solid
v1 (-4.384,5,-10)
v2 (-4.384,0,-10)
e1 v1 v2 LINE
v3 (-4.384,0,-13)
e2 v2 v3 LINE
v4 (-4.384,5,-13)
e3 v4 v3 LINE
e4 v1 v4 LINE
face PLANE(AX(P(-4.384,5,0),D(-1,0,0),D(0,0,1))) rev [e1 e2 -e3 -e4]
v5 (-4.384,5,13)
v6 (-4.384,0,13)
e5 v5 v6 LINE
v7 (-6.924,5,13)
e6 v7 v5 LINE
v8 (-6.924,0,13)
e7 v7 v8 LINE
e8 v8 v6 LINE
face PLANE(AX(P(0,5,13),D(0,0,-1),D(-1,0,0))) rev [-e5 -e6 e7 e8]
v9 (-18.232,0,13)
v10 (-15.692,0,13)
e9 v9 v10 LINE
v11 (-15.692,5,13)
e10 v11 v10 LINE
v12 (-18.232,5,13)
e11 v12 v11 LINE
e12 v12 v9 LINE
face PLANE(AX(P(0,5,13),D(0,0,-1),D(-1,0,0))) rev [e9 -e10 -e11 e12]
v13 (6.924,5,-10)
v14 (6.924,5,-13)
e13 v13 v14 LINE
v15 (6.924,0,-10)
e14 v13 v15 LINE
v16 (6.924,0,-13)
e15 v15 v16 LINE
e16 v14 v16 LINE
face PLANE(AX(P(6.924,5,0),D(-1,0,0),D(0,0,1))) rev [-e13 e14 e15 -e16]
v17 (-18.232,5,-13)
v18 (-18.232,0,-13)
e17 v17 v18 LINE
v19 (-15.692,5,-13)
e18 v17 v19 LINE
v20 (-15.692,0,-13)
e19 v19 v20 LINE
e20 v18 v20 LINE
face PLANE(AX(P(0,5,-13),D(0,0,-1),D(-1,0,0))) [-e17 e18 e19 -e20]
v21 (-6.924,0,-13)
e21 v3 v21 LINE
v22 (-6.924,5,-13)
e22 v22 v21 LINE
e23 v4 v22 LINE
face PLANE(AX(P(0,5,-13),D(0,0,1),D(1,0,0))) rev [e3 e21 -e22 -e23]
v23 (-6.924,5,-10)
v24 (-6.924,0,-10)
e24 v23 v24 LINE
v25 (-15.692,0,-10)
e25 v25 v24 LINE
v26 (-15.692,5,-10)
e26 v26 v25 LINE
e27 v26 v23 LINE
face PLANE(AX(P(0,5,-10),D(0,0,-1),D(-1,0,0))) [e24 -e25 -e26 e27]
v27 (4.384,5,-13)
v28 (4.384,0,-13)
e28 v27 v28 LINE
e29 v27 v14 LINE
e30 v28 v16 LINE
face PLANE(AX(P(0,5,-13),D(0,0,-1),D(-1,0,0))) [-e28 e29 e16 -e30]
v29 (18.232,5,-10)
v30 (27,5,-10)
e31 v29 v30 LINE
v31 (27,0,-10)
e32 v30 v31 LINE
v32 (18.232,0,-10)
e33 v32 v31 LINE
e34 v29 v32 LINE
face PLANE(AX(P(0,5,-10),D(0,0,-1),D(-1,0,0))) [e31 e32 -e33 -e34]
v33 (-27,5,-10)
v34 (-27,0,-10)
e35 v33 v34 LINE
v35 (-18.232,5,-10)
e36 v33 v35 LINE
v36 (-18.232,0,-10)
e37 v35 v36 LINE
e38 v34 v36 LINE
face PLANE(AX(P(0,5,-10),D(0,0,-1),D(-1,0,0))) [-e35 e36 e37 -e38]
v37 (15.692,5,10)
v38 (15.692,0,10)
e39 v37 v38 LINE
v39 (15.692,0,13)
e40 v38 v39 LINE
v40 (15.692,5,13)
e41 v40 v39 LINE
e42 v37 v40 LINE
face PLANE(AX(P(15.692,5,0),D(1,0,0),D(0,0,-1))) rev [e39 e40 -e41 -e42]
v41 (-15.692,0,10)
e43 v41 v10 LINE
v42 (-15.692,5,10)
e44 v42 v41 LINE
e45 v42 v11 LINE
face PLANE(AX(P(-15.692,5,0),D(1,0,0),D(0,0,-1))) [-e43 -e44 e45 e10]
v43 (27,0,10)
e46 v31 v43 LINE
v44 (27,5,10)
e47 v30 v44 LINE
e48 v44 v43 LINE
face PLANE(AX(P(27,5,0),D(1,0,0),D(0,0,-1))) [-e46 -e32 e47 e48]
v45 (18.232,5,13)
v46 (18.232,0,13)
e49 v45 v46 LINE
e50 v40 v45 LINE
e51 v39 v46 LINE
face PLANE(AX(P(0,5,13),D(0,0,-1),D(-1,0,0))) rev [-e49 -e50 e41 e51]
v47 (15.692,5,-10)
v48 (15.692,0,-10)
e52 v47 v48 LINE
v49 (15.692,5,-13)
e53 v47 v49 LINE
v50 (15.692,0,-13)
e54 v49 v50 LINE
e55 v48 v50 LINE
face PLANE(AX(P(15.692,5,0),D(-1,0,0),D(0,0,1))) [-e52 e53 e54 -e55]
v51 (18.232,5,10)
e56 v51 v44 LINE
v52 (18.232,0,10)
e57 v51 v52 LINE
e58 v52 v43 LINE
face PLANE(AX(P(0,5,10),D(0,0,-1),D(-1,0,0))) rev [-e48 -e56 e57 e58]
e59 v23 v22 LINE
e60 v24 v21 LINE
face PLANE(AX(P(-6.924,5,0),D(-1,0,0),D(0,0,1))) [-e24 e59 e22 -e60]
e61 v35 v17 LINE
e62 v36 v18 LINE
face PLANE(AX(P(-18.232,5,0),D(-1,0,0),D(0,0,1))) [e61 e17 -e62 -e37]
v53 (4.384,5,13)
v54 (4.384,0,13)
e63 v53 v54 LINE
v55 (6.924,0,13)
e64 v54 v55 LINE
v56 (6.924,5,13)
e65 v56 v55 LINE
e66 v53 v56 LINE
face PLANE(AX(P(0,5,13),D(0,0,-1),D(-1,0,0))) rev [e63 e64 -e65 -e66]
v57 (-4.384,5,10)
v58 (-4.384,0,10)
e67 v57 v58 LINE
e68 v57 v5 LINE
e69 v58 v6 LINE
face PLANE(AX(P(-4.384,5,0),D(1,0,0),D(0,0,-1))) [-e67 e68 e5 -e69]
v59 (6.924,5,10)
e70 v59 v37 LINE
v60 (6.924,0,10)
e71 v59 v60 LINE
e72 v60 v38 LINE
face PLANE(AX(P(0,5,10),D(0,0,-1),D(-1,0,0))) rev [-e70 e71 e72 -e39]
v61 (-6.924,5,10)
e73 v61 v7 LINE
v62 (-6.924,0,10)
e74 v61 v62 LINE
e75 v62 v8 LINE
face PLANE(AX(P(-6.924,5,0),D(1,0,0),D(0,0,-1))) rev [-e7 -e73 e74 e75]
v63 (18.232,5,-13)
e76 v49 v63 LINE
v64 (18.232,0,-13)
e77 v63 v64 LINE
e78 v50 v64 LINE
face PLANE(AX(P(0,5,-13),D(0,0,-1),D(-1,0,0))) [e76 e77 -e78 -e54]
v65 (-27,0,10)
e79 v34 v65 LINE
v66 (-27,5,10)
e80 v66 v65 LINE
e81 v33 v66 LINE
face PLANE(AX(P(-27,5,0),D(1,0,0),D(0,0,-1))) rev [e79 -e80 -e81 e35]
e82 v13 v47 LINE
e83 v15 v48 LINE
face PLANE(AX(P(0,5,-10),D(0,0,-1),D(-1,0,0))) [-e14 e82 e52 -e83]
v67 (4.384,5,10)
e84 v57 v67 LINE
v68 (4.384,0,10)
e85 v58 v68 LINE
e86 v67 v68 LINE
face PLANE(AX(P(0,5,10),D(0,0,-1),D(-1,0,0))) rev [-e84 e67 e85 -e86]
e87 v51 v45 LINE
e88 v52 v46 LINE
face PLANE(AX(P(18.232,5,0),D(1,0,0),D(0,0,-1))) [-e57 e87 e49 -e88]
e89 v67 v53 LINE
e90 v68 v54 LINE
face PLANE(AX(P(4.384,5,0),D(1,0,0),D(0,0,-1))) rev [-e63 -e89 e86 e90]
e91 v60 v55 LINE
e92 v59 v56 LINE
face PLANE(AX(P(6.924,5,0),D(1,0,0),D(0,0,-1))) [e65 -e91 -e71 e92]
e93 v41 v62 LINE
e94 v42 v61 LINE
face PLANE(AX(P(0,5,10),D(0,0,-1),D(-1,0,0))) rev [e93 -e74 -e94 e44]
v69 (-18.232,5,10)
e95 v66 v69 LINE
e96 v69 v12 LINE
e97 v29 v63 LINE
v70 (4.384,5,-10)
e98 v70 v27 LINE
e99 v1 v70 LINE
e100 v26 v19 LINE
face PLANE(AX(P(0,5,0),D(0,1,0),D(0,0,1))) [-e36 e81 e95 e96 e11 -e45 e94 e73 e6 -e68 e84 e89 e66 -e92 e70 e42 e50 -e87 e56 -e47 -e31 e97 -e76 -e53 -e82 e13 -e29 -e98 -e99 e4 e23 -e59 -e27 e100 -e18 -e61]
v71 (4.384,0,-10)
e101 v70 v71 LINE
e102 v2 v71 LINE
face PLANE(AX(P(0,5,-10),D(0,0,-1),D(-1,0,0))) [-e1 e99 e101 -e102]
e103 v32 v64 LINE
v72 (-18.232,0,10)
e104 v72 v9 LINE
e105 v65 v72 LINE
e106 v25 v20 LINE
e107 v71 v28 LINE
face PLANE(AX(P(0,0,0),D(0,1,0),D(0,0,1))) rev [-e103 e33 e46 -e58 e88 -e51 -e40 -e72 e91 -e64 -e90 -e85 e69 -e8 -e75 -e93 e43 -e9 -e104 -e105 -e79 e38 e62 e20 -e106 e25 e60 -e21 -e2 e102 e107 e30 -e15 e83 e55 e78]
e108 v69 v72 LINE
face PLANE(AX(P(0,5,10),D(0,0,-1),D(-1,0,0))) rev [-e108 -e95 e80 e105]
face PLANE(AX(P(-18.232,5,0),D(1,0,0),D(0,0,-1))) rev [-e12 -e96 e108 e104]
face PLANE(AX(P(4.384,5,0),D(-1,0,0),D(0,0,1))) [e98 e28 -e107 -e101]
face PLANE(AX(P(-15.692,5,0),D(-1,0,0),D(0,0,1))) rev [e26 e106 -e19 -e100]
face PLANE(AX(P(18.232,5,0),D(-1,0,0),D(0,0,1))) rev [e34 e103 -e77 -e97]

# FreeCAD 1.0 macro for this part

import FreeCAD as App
import Part
import Sketcher

doc = App.newDocument("Part")
body = doc.addObject("PartDesign::Body", "Body")

# Sketch on XZ plane
sketch1 = body.newObject("Sketcher::SketchObject", "Sketch")
sketch1.AttachmentSupport = (doc.getObject("XZ_Plane"), [""])
sketch1.MapMode = "FlatFace"
sketch1.addGeometry(Part.LineSegment(App.Vector(-27, -10, 0), App.Vector(-27, 10, 0)), False)
sketch1.addGeometry(Part.LineSegment(App.Vector(-27, 10, 0), App.Vector(-18.232, 10, 0)), False)
sketch1.addGeometry(Part.LineSegment(App.Vector(-18.232, 10, 0), App.Vector(-18.232, 13, 0)), False)
sketch1.addGeometry(Part.LineSegment(App.Vector(-18.232, 13, 0), App.Vector(-15.692, 13, 0)), False)
sketch1.addGeometry(Part.LineSegment(App.Vector(-15.692, 13, 0), App.Vector(-15.692, 10, 0)), False)
sketch1.addGeometry(Part.LineSegment(App.Vector(-15.692, 10, 0), App.Vector(-6.924, 10, 0)), False)
sketch1.addGeometry(Part.LineSegment(App.Vector(-6.924, 10, 0), App.Vector(-6.924, 13, 0)), False)
sketch1.addGeometry(Part.LineSegment(App.Vector(-6.924, 13, 0), App.Vector(-4.384, 13, 0)), False)
sketch1.addGeometry(Part.LineSegment(App.Vector(-4.384, 13, 0), App.Vector(-4.384, 10, 0)), False)
sketch1.addGeometry(Part.LineSegment(App.Vector(-4.384, 10, 0), App.Vector(4.384, 10, 0)), False)
sketch1.addGeometry(Part.LineSegment(App.Vector(4.384, 10, 0), App.Vector(4.384, 13, 0)), False)
sketch1.addGeometry(Part.LineSegment(App.Vector(4.384, 13, 0), App.Vector(6.924, 13, 0)), False)
sketch1.addGeometry(Part.LineSegment(App.Vector(6.924, 13, 0), App.Vector(6.924, 10, 0)), False)
sketch1.addGeometry(Part.LineSegment(App.Vector(6.924, 10, 0), App.Vector(15.692, 10, 0)), False)
sketch1.addGeometry(Part.LineSegment(App.Vector(15.692, 10, 0), App.Vector(15.692, 13, 0)), False)
sketch1.addGeometry(Part.LineSegment(App.Vector(15.692, 13, 0), App.Vector(18.232, 13, 0)), False)
sketch1.addGeometry(Part.LineSegment(App.Vector(18.232, 13, 0), App.Vector(18.232, 10, 0)), False)
sketch1.addGeometry(Part.LineSegment(App.Vector(18.232, 10, 0), App.Vector(27, 10, 0)), False)
sketch1.addGeometry(Part.LineSegment(App.Vector(27, 10, 0), App.Vector(27, -10, 0)), False)
sketch1.addGeometry(Part.LineSegment(App.Vector(27, -10, 0), App.Vector(18.232, -10, 0)), False)
sketch1.addGeometry(Part.LineSegment(App.Vector(18.232, -10, 0), App.Vector(18.232, -13, 0)), False)
sketch1.addGeometry(Part.LineSegment(App.Vector(18.232, -13, 0), App.Vector(15.692, -13, 0)), False)
sketch1.addGeometry(Part.LineSegment(App.Vector(15.692, -13, 0), App.Vector(15.692, -10, 0)), False)
sketch1.addGeometry(Part.LineSegment(App.Vector(15.692, -10, 0), App.Vector(6.924, -10, 0)), False)
sketch1.addGeometry(Part.LineSegment(App.Vector(6.924, -10, 0), App.Vector(6.924, -13, 0)), False)
sketch1.addGeometry(Part.LineSegment(App.Vector(6.924, -13, 0), App.Vector(4.384, -13, 0)), False)
sketch1.addGeometry(Part.LineSegment(App.Vector(4.384, -13, 0), App.Vector(4.384, -10, 0)), False)
sketch1.addGeometry(Part.LineSegment(App.Vector(4.384, -10, 0), App.Vector(-4.384, -10, 0)), False)
sketch1.addGeometry(Part.LineSegment(App.Vector(-4.384, -10, 0), App.Vector(-4.384, -13, 0)), False)
sketch1.addGeometry(Part.LineSegment(App.Vector(-4.384, -13, 0), App.Vector(-6.924, -13, 0)), False)
sketch1.addGeometry(Part.LineSegment(App.Vector(-6.924, -13, 0), App.Vector(-6.924, -10, 0)), False)
sketch1.addGeometry(Part.LineSegment(App.Vector(-6.924, -10, 0), App.Vector(-15.692, -10, 0)), False)
sketch1.addGeometry(Part.LineSegment(App.Vector(-15.692, -10, 0), App.Vector(-15.692, -13, 0)), False)
sketch1.addGeometry(Part.LineSegment(App.Vector(-15.692, -13, 0), App.Vector(-18.232, -13, 0)), False)
sketch1.addGeometry(Part.LineSegment(App.Vector(-18.232, -13, 0), App.Vector(-18.232, -10, 0)), False)
sketch1.addGeometry(Part.LineSegment(App.Vector(-18.232, -10, 0), App.Vector(-27, -10, 0)), False)
sketch1.addConstraint(Sketcher.Constraint("Coincident", 0, 2, 1, 1))
sketch1.addConstraint(Sketcher.Constraint("Coincident", 1, 2, 2, 1))
sketch1.addConstraint(Sketcher.Constraint("Coincident", 2, 2, 3, 1))
sketch1.addConstraint(Sketcher.Constraint("Coincident", 3, 2, 4, 1))
sketch1.addConstraint(Sketcher.Constraint("Coincident", 4, 2, 5, 1))
sketch1.addConstraint(Sketcher.Constraint("Coincident", 5, 2, 6, 1))
sketch1.addConstraint(Sketcher.Constraint("Coincident", 6, 2, 7, 1))
sketch1.addConstraint(Sketcher.Constraint("Coincident", 7, 2, 8, 1))
sketch1.addConstraint(Sketcher.Constraint("Coincident", 8, 2, 9, 1))
sketch1.addConstraint(Sketcher.Constraint("Coincident", 9, 2, 10, 1))
sketch1.addConstraint(Sketcher.Constraint("Coincident", 10, 2, 11, 1))
sketch1.addConstraint(Sketcher.Constraint("Coincident", 11, 2, 12, 1))
sketch1.addConstraint(Sketcher.Constraint("Coincident", 12, 2, 13, 1))
sketch1.addConstraint(Sketcher.Constraint("Coincident", 13, 2, 14, 1))
sketch1.addConstraint(Sketcher.Constraint("Coincident", 14, 2, 15, 1))
sketch1.addConstraint(Sketcher.Constraint("Coincident", 15, 2, 16, 1))
sketch1.addConstraint(Sketcher.Constraint("Coincident", 16, 2, 17, 1))
sketch1.addConstraint(Sketcher.Constraint("Coincident", 17, 2, 18, 1))
sketch1.addConstraint(Sketcher.Constraint("Coincident", 18, 2, 19, 1))
sketch1.addConstraint(Sketcher.Constraint("Coincident", 19, 2, 20, 1))
sketch1.addConstraint(Sketcher.Constraint("Coincident", 20, 2, 21, 1))
sketch1.addConstraint(Sketcher.Constraint("Coincident", 21, 2, 22, 1))
sketch1.addConstraint(Sketcher.Constraint("Coincident", 22, 2, 23, 1))
sketch1.addConstraint(Sketcher.Constraint("Coincident", 23, 2, 24, 1))
sketch1.addConstraint(Sketcher.Constraint("Coincident", 24, 2, 25, 1))
sketch1.addConstraint(Sketcher.Constraint("Coincident", 25, 2, 26, 1))
sketch1.addConstraint(Sketcher.Constraint("Coincident", 26, 2, 27, 1))
sketch1.addConstraint(Sketcher.Constraint("Coincident", 27, 2, 28, 1))
sketch1.addConstraint(Sketcher.Constraint("Coincident", 28, 2, 29, 1))
sketch1.addConstraint(Sketcher.Constraint("Coincident", 29, 2, 30, 1))
sketch1.addConstraint(Sketcher.Constraint("Coincident", 30, 2, 31, 1))
sketch1.addConstraint(Sketcher.Constraint("Coincident", 31, 2, 32, 1))
sketch1.addConstraint(Sketcher.Constraint("Coincident", 32, 2, 33, 1))
sketch1.addConstraint(Sketcher.Constraint("Coincident", 33, 2, 34, 1))
sketch1.addConstraint(Sketcher.Constraint("Coincident", 34, 2, 35, 1))
sketch1.addConstraint(Sketcher.Constraint("Coincident", 35, 2, 0, 1))
sketch1.addConstraint(Sketcher.Constraint("Vertical", 0))
sketch1.addConstraint(Sketcher.Constraint("Horizontal", 1))
sketch1.addConstraint(Sketcher.Constraint("Vertical", 2))
sketch1.addConstraint(Sketcher.Constraint("Horizontal", 3))
sketch1.addConstraint(Sketcher.Constraint("Vertical", 4))
sketch1.addConstraint(Sketcher.Constraint("Horizontal", 5))
sketch1.addConstraint(Sketcher.Constraint("Vertical", 6))
sketch1.addConstraint(Sketcher.Constraint("Horizontal", 7))
sketch1.addConstraint(Sketcher.Constraint("Vertical", 8))
sketch1.addConstraint(Sketcher.Constraint("Horizontal", 9))
sketch1.addConstraint(Sketcher.Constraint("Vertical", 10))
sketch1.addConstraint(Sketcher.Constraint("Horizontal", 11))
sketch1.addConstraint(Sketcher.Constraint("Vertical", 12))
sketch1.addConstraint(Sketcher.Constraint("Horizontal", 13))
sketch1.addConstraint(Sketcher.Constraint("Vertical", 14))
sketch1.addConstraint(Sketcher.Constraint("Horizontal", 15))
sketch1.addConstraint(Sketcher.Constraint("Vertical", 16))
sketch1.addConstraint(Sketcher.Constraint("Horizontal", 17))
sketch1.addConstraint(Sketcher.Constraint("Vertical", 18))
sketch1.addConstraint(Sketcher.Constraint("Horizontal", 19))
sketch1.addConstraint(Sketcher.Constraint("Vertical", 20))
sketch1.addConstraint(Sketcher.Constraint("Horizontal", 21))
sketch1.addConstraint(Sketcher.Constraint("Vertical", 22))
sketch1.addConstraint(Sketcher.Constraint("Horizontal", 23))
sketch1.addConstraint(Sketcher.Constraint("Vertical", 24))
sketch1.addConstraint(Sketcher.Constraint("Horizontal", 25))
sketch1.addConstraint(Sketcher.Constraint("Vertical", 26))
sketch1.addConstraint(Sketcher.Constraint("Horizontal", 27))
sketch1.addConstraint(Sketcher.Constraint("Vertical", 28))
sketch1.addConstraint(Sketcher.Constraint("Horizontal", 29))
sketch1.addConstraint(Sketcher.Constraint("Vertical", 30))
sketch1.addConstraint(Sketcher.Constraint("Horizontal", 31))
sketch1.addConstraint(Sketcher.Constraint("Vertical", 32))
sketch1.addConstraint(Sketcher.Constraint("Horizontal", 33))
sketch1.addConstraint(Sketcher.Constraint("Vertical", 34))
sketch1.addConstraint(Sketcher.Constraint("Horizontal", 35))
sketch1.addConstraint(Sketcher.Constraint("Symmetric", 0, 2, 18, 2, -1, 1))
sketch1.addConstraint(Sketcher.Constraint("Symmetric", 2, 2, 20, 2, -1, 1))
sketch1.addConstraint(Sketcher.Constraint("Symmetric", 4, 2, 22, 2, -1, 1))
sketch1.addConstraint(Sketcher.Constraint("Symmetric", 6, 2, 24, 2, -1, 1))
sketch1.addConstraint(Sketcher.Constraint("Symmetric", 8, 2, 26, 2, -1, 1))
sketch1.addConstraint(Sketcher.Constraint("Symmetric", 10, 2, 28, 2, -1, 1))
sketch1.addConstraint(Sketcher.Constraint("Symmetric", 12, 2, 30, 2, -1, 1))
sketch1.addConstraint(Sketcher.Constraint("Symmetric", 14, 2, 32, 2, -1, 1))
sketch1.addConstraint(Sketcher.Constraint("Symmetric", 16, 2, 34, 2, -1, 1))
sketch1.addConstraint(Sketcher.Constraint("Symmetric", 7, 2, 10, 2, -2))
sketch1.addConstraint(Sketcher.Constraint("Symmetric", 5, 2, 12, 2, -2))
sketch1.addConstraint(Sketcher.Constraint("Symmetric", 3, 2, 14, 2, -2))
sketch1.addConstraint(Sketcher.Constraint("Symmetric", 1, 2, 16, 2, -2))
sketch1.addConstraint(Sketcher.Constraint("Horizontal", 1, 2, 4, 2))
sketch1.addConstraint(Sketcher.Constraint("Horizontal", 3, 2, 6, 2))
sketch1.addConstraint(Sketcher.Constraint("Horizontal", 5, 2, 8, 2))
sketch1.addConstraint(Sketcher.Constraint("Equal", 1, 5))
sketch1.addConstraint(Sketcher.Constraint("Equal", 3, 7))
sketch1.addConstraint(Sketcher.Constraint("Equal", 5, 9))
sketch1.addConstraint(Sketcher.Constraint("DistanceY", 0, 1, 0, 2, 20.0))
sketch1.addConstraint(Sketcher.Constraint("DistanceY", 2, 1, 2, 2, 3.0))
sketch1.addConstraint(Sketcher.Constraint("DistanceX", 0, 2, -1, 1, 27.0))
sketch1.addConstraint(Sketcher.Constraint("DistanceX", 3, 1, 3, 2, 2.54))
pad1 = body.newObject("PartDesign::Pad", "Pad")
pad1.Profile = sketch1
pad1.Length = 5
pad1.Reversed = True

doc.recompute()
